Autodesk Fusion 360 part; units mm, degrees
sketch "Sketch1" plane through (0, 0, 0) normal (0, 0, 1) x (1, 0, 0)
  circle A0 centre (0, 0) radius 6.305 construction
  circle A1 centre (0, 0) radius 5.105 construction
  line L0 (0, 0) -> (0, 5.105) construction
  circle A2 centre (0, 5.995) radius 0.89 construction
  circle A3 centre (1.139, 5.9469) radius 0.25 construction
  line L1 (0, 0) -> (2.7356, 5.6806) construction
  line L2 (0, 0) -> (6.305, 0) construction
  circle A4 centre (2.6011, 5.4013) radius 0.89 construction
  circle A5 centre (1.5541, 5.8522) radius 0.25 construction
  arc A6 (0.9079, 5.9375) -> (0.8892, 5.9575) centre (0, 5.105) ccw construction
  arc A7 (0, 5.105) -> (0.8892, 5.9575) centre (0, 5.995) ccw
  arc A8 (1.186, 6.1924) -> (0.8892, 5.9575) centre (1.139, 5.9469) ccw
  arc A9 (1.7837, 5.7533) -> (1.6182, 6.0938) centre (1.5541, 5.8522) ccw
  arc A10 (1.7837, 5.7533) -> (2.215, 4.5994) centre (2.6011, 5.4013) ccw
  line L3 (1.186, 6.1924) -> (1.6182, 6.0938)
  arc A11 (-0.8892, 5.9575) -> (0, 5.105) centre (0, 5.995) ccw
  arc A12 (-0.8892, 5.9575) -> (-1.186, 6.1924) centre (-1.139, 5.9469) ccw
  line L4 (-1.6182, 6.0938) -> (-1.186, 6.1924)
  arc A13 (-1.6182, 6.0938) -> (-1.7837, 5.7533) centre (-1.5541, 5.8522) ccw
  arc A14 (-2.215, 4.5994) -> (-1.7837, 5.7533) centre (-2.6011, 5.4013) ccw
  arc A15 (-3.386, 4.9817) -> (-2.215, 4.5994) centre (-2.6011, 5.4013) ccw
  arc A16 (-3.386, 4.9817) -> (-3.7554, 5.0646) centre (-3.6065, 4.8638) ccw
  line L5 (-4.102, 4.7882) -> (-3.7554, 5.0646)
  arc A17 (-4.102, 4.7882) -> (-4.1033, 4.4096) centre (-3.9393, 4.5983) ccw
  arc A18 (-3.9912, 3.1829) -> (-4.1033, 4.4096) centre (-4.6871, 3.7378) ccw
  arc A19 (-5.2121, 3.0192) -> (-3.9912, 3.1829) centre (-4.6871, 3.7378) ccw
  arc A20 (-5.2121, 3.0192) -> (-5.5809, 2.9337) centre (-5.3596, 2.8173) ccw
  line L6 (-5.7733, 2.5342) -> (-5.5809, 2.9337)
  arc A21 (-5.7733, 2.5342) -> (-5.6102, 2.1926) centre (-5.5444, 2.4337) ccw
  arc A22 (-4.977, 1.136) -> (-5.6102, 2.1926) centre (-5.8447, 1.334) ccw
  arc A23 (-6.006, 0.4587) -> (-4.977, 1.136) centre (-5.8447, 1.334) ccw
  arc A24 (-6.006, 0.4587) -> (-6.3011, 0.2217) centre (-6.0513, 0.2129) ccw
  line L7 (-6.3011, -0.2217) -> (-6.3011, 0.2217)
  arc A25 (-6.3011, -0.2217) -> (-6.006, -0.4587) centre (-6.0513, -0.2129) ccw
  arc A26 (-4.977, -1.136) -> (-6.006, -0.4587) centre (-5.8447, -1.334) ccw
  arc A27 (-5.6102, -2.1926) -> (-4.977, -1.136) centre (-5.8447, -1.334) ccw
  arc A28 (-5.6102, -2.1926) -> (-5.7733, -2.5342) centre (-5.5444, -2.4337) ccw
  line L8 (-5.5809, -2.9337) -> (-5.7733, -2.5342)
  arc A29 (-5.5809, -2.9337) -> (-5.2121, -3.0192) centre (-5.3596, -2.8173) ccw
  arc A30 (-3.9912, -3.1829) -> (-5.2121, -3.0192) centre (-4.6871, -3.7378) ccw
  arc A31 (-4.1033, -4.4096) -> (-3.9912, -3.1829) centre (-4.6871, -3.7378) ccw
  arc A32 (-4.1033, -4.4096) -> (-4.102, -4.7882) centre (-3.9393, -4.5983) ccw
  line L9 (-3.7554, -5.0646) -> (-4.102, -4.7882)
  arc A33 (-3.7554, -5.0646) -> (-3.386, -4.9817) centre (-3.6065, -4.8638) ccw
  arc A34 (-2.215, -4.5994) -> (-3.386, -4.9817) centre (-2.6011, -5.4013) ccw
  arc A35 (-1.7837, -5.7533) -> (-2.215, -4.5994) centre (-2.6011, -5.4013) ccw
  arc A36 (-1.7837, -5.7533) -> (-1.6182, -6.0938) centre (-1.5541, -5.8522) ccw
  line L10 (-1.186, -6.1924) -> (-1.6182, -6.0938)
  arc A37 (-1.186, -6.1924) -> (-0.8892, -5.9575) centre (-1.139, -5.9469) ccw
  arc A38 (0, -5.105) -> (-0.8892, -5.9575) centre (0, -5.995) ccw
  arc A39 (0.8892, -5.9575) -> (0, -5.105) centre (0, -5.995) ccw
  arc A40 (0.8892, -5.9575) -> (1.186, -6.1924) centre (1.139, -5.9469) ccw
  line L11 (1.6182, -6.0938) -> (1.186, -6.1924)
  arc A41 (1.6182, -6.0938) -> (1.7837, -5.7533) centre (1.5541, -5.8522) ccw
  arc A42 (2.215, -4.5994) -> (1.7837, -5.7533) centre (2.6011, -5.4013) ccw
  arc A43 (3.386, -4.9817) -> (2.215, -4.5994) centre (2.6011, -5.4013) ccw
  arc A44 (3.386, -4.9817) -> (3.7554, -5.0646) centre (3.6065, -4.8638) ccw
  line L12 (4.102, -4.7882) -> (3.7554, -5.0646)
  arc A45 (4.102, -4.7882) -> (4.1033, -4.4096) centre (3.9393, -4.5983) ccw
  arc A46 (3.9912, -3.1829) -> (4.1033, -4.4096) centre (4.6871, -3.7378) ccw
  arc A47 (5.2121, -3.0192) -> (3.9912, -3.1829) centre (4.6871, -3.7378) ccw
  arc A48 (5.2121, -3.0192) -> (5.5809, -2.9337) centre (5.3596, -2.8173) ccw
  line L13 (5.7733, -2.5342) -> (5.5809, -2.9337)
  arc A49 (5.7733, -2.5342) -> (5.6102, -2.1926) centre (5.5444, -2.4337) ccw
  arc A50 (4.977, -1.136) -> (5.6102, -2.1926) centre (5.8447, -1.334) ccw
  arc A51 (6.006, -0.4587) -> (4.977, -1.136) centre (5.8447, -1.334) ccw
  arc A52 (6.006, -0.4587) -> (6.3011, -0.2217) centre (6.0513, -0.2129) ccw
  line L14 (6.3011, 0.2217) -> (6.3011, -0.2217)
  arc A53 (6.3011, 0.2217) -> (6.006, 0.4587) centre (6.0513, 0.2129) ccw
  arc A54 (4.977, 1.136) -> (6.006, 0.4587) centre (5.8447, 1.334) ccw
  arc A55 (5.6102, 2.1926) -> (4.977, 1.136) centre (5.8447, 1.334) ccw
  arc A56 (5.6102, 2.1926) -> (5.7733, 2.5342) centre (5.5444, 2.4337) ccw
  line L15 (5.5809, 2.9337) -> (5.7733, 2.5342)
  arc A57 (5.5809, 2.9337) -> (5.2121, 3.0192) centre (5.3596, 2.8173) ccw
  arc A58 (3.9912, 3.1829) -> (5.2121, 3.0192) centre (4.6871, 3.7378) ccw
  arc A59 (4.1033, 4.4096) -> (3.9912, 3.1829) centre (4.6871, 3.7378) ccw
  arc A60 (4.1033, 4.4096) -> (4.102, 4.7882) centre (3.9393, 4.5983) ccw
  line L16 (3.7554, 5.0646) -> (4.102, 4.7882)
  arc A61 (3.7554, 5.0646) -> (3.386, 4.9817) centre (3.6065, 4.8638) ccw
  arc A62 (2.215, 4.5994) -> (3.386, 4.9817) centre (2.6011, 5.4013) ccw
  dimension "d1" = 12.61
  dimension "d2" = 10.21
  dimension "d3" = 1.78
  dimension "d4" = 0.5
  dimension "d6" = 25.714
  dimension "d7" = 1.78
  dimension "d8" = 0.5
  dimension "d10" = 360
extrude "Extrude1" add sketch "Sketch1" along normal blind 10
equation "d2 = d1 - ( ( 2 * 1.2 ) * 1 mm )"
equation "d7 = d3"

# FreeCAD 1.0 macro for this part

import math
import FreeCAD as App
import Part
import Sketcher

V = App.Vector
Q = App.Units.Quantity

doc = App.newDocument("Part")
body = doc.addObject("PartDesign::Body", "Body")

# Sketch on XY plane
sketch1 = body.newObject("Sketcher::SketchObject", "Sketch")
sketch1.AttachmentSupport = (doc.getObject("XY_Plane"), [""])
sketch1.MapMode = "FlatFace"
sketch1.addGeometry([
    Part.ArcOfCircle(Part.Circle(V(0, 6, 0), V(0, 0, 1), 0.89), math.radians(-90), math.radians(-2)),  # 0
    Part.ArcOfCircle(Part.Circle(V(0, 6, 0), V(0, 0, 1), 0.89), math.radians(-178), math.radians(-90)),  # 1
    Part.ArcOfCircle(Part.Circle(V(-1.14, 5.95, 0), V(0, 0, 1), 0.25), math.radians(2), math.radians(101)),  # 2
    Part.LineSegment(V(-1.19, 6.19, 0), V(-1.62, 6.09, 0)),  # 3
    Part.ArcOfCircle(Part.Circle(V(-1.55, 5.85, 0), V(0, 0, 1), 0.25), math.radians(105), math.radians(203)),  # 4
    Part.ArcOfCircle(Part.Circle(V(-2.6, 5.4, 0), V(0, 0, 1), 0.89), math.radians(-64), math.radians(23)),  # 5
    Part.ArcOfCircle(Part.Circle(V(-2.6, 5.4, 0), V(0, 0, 1), 0.89), math.radians(-152), math.radians(-64)),  # 6
    Part.ArcOfCircle(Part.Circle(V(-3.61, 4.86, 0), V(0, 0, 1), 0.25), math.radians(28), math.radians(127)),  # 7
    Part.LineSegment(V(-3.76, 5.06, 0), V(-4.1, 4.79, 0)),  # 8
    Part.ArcOfCircle(Part.Circle(V(-3.94, 4.6, 0), V(0, 0, 1), 0.25), math.radians(131), math.radians(229)),  # 9
    Part.ArcOfCircle(Part.Circle(V(-4.69, 3.74, 0), V(0, 0, 1), 0.89), math.radians(-39), math.radians(49)),  # 10
    Part.ArcOfCircle(Part.Circle(V(-4.69, 3.74, 0), V(0, 0, 1), 0.89), math.radians(-126), math.radians(-39)),  # 11
    Part.ArcOfCircle(Part.Circle(V(-5.36, 2.82, 0), V(0, 0, 1), 0.25), math.radians(54), math.radians(152)),  # 12
    Part.LineSegment(V(-5.58, 2.93, 0), V(-5.77, 2.53, 0)),  # 13
    Part.ArcOfCircle(Part.Circle(V(-5.54, 2.43, 0), V(0, 0, 1), 0.25), math.radians(156), math.radians(255)),  # 14
    Part.ArcOfCircle(Part.Circle(V(-5.84, 1.33, 0), V(0, 0, 1), 0.89), math.radians(-13), math.radians(75)),  # 15
    Part.ArcOfCircle(Part.Circle(V(-5.84, 1.33, 0), V(0, 0, 1), 0.89), math.radians(-100), math.radians(-13)),  # 16
    Part.ArcOfCircle(Part.Circle(V(-6.05, 0.21, 0), V(0, 0, 1), 0.25), math.radians(80), math.radians(178)),  # 17
    Part.LineSegment(V(-6.3, 0.22, 0), V(-6.3, -0.22, 0)),  # 18
    Part.ArcOfCircle(Part.Circle(V(-6.05, -0.21, 0), V(0, 0, 1), 0.25), math.radians(-178), math.radians(-80)),  # 19
    Part.ArcOfCircle(Part.Circle(V(-5.84, -1.33, 0), V(0, 0, 1), 0.89), math.radians(13), math.radians(100)),  # 20
    Part.ArcOfCircle(Part.Circle(V(-5.84, -1.33, 0), V(0, 0, 1), 0.89), math.radians(-75), math.radians(13)),  # 21
    Part.ArcOfCircle(Part.Circle(V(-5.54, -2.43, 0), V(0, 0, 1), 0.25), math.radians(105), math.radians(204)),  # 22
    Part.LineSegment(V(-5.77, -2.53, 0), V(-5.58, -2.93, 0)),  # 23
    Part.ArcOfCircle(Part.Circle(V(-5.36, -2.82, 0), V(0, 0, 1), 0.25), math.radians(-152), math.radians(-54)),  # 24
    Part.ArcOfCircle(Part.Circle(V(-4.69, -3.74, 0), V(0, 0, 1), 0.89), math.radians(39), math.radians(126)),  # 25
    Part.ArcOfCircle(Part.Circle(V(-4.69, -3.74, 0), V(0, 0, 1), 0.89), math.radians(-49), math.radians(39)),  # 26
    Part.ArcOfCircle(Part.Circle(V(-3.94, -4.6, 0), V(0, 0, 1), 0.25), math.radians(131), math.radians(229)),  # 27
    Part.LineSegment(V(-4.1, -4.79, 0), V(-3.76, -5.06, 0)),  # 28
    Part.ArcOfCircle(Part.Circle(V(-3.61, -4.86, 0), V(0, 0, 1), 0.25), math.radians(-127), math.radians(-28)),  # 29
    Part.ArcOfCircle(Part.Circle(V(-2.6, -5.4, 0), V(0, 0, 1), 0.89), math.radians(64), math.radians(152)),  # 30
    Part.ArcOfCircle(Part.Circle(V(-2.6, -5.4, 0), V(0, 0, 1), 0.89), math.radians(-23), math.radians(64)),  # 31
    Part.ArcOfCircle(Part.Circle(V(-1.55, -5.85, 0), V(0, 0, 1), 0.25), math.radians(157), math.radians(255)),  # 32
    Part.LineSegment(V(-1.62, -6.09, 0), V(-1.19, -6.19, 0)),  # 33
    Part.ArcOfCircle(Part.Circle(V(-1.14, -5.95, 0), V(0, 0, 1), 0.25), math.radians(-101), math.radians(-2)),  # 34
    Part.ArcOfCircle(Part.Circle(V(0, -6, 0), V(0, 0, 1), 0.89), math.radians(90), math.radians(178)),  # 35
    Part.ArcOfCircle(Part.Circle(V(0, -6, 0), V(0, 0, 1), 0.89), math.radians(2), math.radians(90)),  # 36
    Part.ArcOfCircle(Part.Circle(V(1.14, -5.95, 0), V(0, 0, 1), 0.25), math.radians(-178), math.radians(-79)),  # 37
    Part.LineSegment(V(1.19, -6.19, 0), V(1.62, -6.09, 0)),  # 38
    Part.ArcOfCircle(Part.Circle(V(1.55, -5.85, 0), V(0, 0, 1), 0.25), math.radians(-75), math.radians(23)),  # 39
    Part.ArcOfCircle(Part.Circle(V(2.6, -5.4, 0), V(0, 0, 1), 0.89), math.radians(116), math.radians(203)),  # 40
    Part.ArcOfCircle(Part.Circle(V(2.6, -5.4, 0), V(0, 0, 1), 0.89), math.radians(28), math.radians(116)),  # 41
    Part.ArcOfCircle(Part.Circle(V(3.61, -4.86, 0), V(0, 0, 1), 0.25), math.radians(-152), math.radians(-53)),  # 42
    Part.LineSegment(V(3.76, -5.06, 0), V(4.1, -4.79, 0)),  # 43
    Part.ArcOfCircle(Part.Circle(V(3.94, -4.6, 0), V(0, 0, 1), 0.25), math.radians(-49), math.radians(49)),  # 44
    Part.ArcOfCircle(Part.Circle(V(4.69, -3.74, 0), V(0, 0, 1), 0.89), math.radians(141), math.radians(229)),  # 45
    Part.ArcOfCircle(Part.Circle(V(4.69, -3.74, 0), V(0, 0, 1), 0.89), math.radians(54), math.radians(141)),  # 46
    Part.ArcOfCircle(Part.Circle(V(5.36, -2.82, 0), V(0, 0, 1), 0.25), math.radians(-126), math.radians(-28)),  # 47
    Part.LineSegment(V(5.58, -2.93, 0), V(5.77, -2.53, 0)),  # 48
    Part.ArcOfCircle(Part.Circle(V(5.54, -2.43, 0), V(0, 0, 1), 0.25), math.radians(-24), math.radians(75)),  # 49
    Part.ArcOfCircle(Part.Circle(V(5.84, -1.33, 0), V(0, 0, 1), 0.89), math.radians(167), math.radians(255)),  # 50
    Part.ArcOfCircle(Part.Circle(V(5.84, -1.33, 0), V(0, 0, 1), 0.89), math.radians(80), math.radians(167)),  # 51
    Part.ArcOfCircle(Part.Circle(V(6.05, -0.21, 0), V(0, 0, 1), 0.25), math.radians(-100), math.radians(-2)),  # 52
    Part.LineSegment(V(6.3, -0.22, 0), V(6.3, 0.22, 0)),  # 53
    Part.ArcOfCircle(Part.Circle(V(6.05, 0.21, 0), V(0, 0, 1), 0.25), math.radians(2), math.radians(100)),  # 54
    Part.ArcOfCircle(Part.Circle(V(5.84, 1.33, 0), V(0, 0, 1), 0.89), math.radians(-167), math.radians(-80)),  # 55
    Part.ArcOfCircle(Part.Circle(V(5.84, 1.33, 0), V(0, 0, 1), 0.89), math.radians(105), math.radians(193)),  # 56
    Part.ArcOfCircle(Part.Circle(V(5.54, 2.43, 0), V(0, 0, 1), 0.25), math.radians(-75), math.radians(24)),  # 57
    Part.LineSegment(V(5.77, 2.53, 0), V(5.58, 2.93, 0)),  # 58
    Part.ArcOfCircle(Part.Circle(V(5.36, 2.82, 0), V(0, 0, 1), 0.25), math.radians(28), math.radians(126)),  # 59
    Part.ArcOfCircle(Part.Circle(V(4.69, 3.74, 0), V(0, 0, 1), 0.89), math.radians(-141), math.radians(-54)),  # 60
    Part.ArcOfCircle(Part.Circle(V(4.69, 3.74, 0), V(0, 0, 1), 0.89), math.radians(131), math.radians(219)),  # 61
    Part.ArcOfCircle(Part.Circle(V(3.94, 4.6, 0), V(0, 0, 1), 0.25), math.radians(-49), math.radians(49)),  # 62
    Part.LineSegment(V(4.1, 4.79, 0), V(3.76, 5.06, 0)),  # 63
    Part.ArcOfCircle(Part.Circle(V(3.61, 4.86, 0), V(0, 0, 1), 0.25), math.radians(53), math.radians(152)),  # 64
    Part.ArcOfCircle(Part.Circle(V(2.6, 5.4, 0), V(0, 0, 1), 0.89), math.radians(-116), math.radians(-28)),  # 65
    Part.ArcOfCircle(Part.Circle(V(2.6, 5.4, 0), V(0, 0, 1), 0.89), math.radians(157), math.radians(244)),  # 66
    Part.ArcOfCircle(Part.Circle(V(1.55, 5.85, 0), V(0, 0, 1), 0.25), math.radians(-23), math.radians(75)),  # 67
    Part.LineSegment(V(1.62, 6.09, 0), V(1.19, 6.19, 0)),  # 68
    Part.ArcOfCircle(Part.Circle(V(1.14, 5.95, 0), V(0, 0, 1), 0.25), math.radians(79), math.radians(178)),  # 69
], False)
sketch1.addConstraint([
    Sketcher.Constraint("Tangent", 0, 1, 1, 2),
    Sketcher.Constraint("Tangent", 1, 1, 2, 1),
    Sketcher.Constraint("Coincident", 2, 2, 3, 1),
    Sketcher.Constraint("Coincident", 3, 2, 4, 1),
    Sketcher.Constraint("Tangent", 4, 2, 5, 2),
    Sketcher.Constraint("Tangent", 5, 1, 6, 2),
    Sketcher.Constraint("Tangent", 6, 1, 7, 1),
    Sketcher.Constraint("Coincident", 7, 2, 8, 1),
    Sketcher.Constraint("Coincident", 8, 2, 9, 1),
    Sketcher.Constraint("Tangent", 9, 2, 10, 2),
    Sketcher.Constraint("Tangent", 10, 1, 11, 2),
    Sketcher.Constraint("Tangent", 11, 1, 12, 1),
    Sketcher.Constraint("Coincident", 12, 2, 13, 1),
    Sketcher.Constraint("Coincident", 13, 2, 14, 1),
    Sketcher.Constraint("Tangent", 14, 2, 15, 2),
    Sketcher.Constraint("Tangent", 15, 1, 16, 2),
    Sketcher.Constraint("Tangent", 16, 1, 17, 1),
    Sketcher.Constraint("Coincident", 17, 2, 18, 1),
    Sketcher.Constraint("Coincident", 18, 2, 19, 1),
    Sketcher.Constraint("Tangent", 19, 2, 20, 2),
    Sketcher.Constraint("Tangent", 20, 1, 21, 2),
    Sketcher.Constraint("Tangent", 21, 1, 22, 1),
    Sketcher.Constraint("Coincident", 22, 2, 23, 1),
    Sketcher.Constraint("Coincident", 23, 2, 24, 1),
    Sketcher.Constraint("Tangent", 24, 2, 25, 2),
    Sketcher.Constraint("Tangent", 25, 1, 26, 2),
    Sketcher.Constraint("Tangent", 26, 1, 27, 1),
    Sketcher.Constraint("Coincident", 27, 2, 28, 1),
    Sketcher.Constraint("Coincident", 28, 2, 29, 1),
    Sketcher.Constraint("Tangent", 29, 2, 30, 2),
    Sketcher.Constraint("Tangent", 30, 1, 31, 2),
    Sketcher.Constraint("Tangent", 31, 1, 32, 1),
    Sketcher.Constraint("Coincident", 32, 2, 33, 1),
    Sketcher.Constraint("Coincident", 33, 2, 34, 1),
    Sketcher.Constraint("Tangent", 34, 2, 35, 2),
    Sketcher.Constraint("Tangent", 35, 1, 36, 2),
    Sketcher.Constraint("Tangent", 36, 1, 37, 1),
    Sketcher.Constraint("Coincident", 37, 2, 38, 1),
    Sketcher.Constraint("Coincident", 38, 2, 39, 1),
    Sketcher.Constraint("Tangent", 39, 2, 40, 2),
    Sketcher.Constraint("Tangent", 40, 1, 41, 2),
    Sketcher.Constraint("Tangent", 41, 1, 42, 1),
    Sketcher.Constraint("Coincident", 42, 2, 43, 1),
    Sketcher.Constraint("Coincident", 43, 2, 44, 1),
    Sketcher.Constraint("Tangent", 44, 2, 45, 2),
    Sketcher.Constraint("Tangent", 45, 1, 46, 2),
    Sketcher.Constraint("Tangent", 46, 1, 47, 1),
    Sketcher.Constraint("Coincident", 47, 2, 48, 1),
    Sketcher.Constraint("Coincident", 48, 2, 49, 1),
    Sketcher.Constraint("Tangent", 49, 2, 50, 2),
    Sketcher.Constraint("Tangent", 50, 1, 51, 2),
    Sketcher.Constraint("Tangent", 51, 1, 52, 1),
    Sketcher.Constraint("Coincident", 52, 2, 53, 1),
    Sketcher.Constraint("Coincident", 53, 2, 54, 1),
    Sketcher.Constraint("Tangent", 54, 2, 55, 2),
    Sketcher.Constraint("Tangent", 55, 1, 56, 2),
    Sketcher.Constraint("Tangent", 56, 1, 57, 1),
    Sketcher.Constraint("Coincident", 57, 2, 58, 1),
    Sketcher.Constraint("Coincident", 58, 2, 59, 1),
    Sketcher.Constraint("Tangent", 59, 2, 60, 2),
    Sketcher.Constraint("Tangent", 60, 1, 61, 2),
    Sketcher.Constraint("Tangent", 61, 1, 62, 1),
    Sketcher.Constraint("Coincident", 62, 2, 63, 1),
    Sketcher.Constraint("Coincident", 63, 2, 64, 1),
    Sketcher.Constraint("Tangent", 64, 2, 65, 2),
    Sketcher.Constraint("Tangent", 65, 1, 66, 2),
    Sketcher.Constraint("Tangent", 66, 1, 67, 1),
    Sketcher.Constraint("Coincident", 67, 2, 68, 1),
    Sketcher.Constraint("Coincident", 68, 2, 69, 1),
    Sketcher.Constraint("Tangent", 69, 2, 0, 2),
    Sketcher.Constraint("Vertical", 18),
    Sketcher.Constraint("Vertical", 53),
    Sketcher.Constraint("Equal", 0, 1),
    Sketcher.Constraint("Equal", 2, 4),
    Sketcher.Constraint("Equal", 1, 5),
    Sketcher.Constraint("Equal", 5, 6),
    Sketcher.Constraint("Equal", 4, 7),
    Sketcher.Constraint("Equal", 7, 9),
    Sketcher.Constraint("Equal", 6, 10),
    Sketcher.Constraint("Equal", 10, 11),
    Sketcher.Constraint("Equal", 9, 12),
    Sketcher.Constraint("Equal", 12, 14),
    Sketcher.Constraint("Equal", 11, 15),
    Sketcher.Constraint("Equal", 15, 16),
    Sketcher.Constraint("Equal", 14, 17),
    Sketcher.Constraint("Equal", 17, 19),
    Sketcher.Constraint("Equal", 16, 20),
    Sketcher.Constraint("Equal", 20, 21),
    Sketcher.Constraint("Equal", 19, 22),
    Sketcher.Constraint("Equal", 22, 24),
    Sketcher.Constraint("Equal", 21, 25),
    Sketcher.Constraint("Equal", 25, 26),
    Sketcher.Constraint("Equal", 24, 27),
    Sketcher.Constraint("Equal", 27, 29),
    Sketcher.Constraint("Equal", 26, 30),
    Sketcher.Constraint("Equal", 30, 31),
    Sketcher.Constraint("Equal", 29, 32),
    Sketcher.Constraint("Equal", 32, 34),
    Sketcher.Constraint("Equal", 31, 35),
    Sketcher.Constraint("Equal", 35, 36),
    Sketcher.Constraint("Equal", 34, 37),
    Sketcher.Constraint("Equal", 37, 39),
    Sketcher.Constraint("Equal", 36, 40),
    Sketcher.Constraint("Equal", 40, 41),
    Sketcher.Constraint("Equal", 39, 42),
    Sketcher.Constraint("Equal", 42, 44),
    Sketcher.Constraint("Equal", 41, 45),
    Sketcher.Constraint("Equal", 45, 46),
    Sketcher.Constraint("Equal", 44, 47),
    Sketcher.Constraint("Equal", 47, 49),
    Sketcher.Constraint("Equal", 46, 50),
    Sketcher.Constraint("Equal", 50, 51),
    Sketcher.Constraint("Equal", 49, 52),
    Sketcher.Constraint("Equal", 52, 54),
    Sketcher.Constraint("Equal", 51, 55),
    Sketcher.Constraint("Equal", 55, 56),
    Sketcher.Constraint("Equal", 54, 57),
    Sketcher.Constraint("Equal", 57, 59),
    Sketcher.Constraint("Equal", 56, 60),
    Sketcher.Constraint("Equal", 60, 61),
    Sketcher.Constraint("Equal", 59, 62),
    Sketcher.Constraint("Equal", 62, 64),
    Sketcher.Constraint("Equal", 61, 65),
    Sketcher.Constraint("Equal", 65, 66),
    Sketcher.Constraint("Equal", 64, 67),
    Sketcher.Constraint("Equal", 67, 69),
    Sketcher.Constraint("Symmetric", 0, 3, 35, 3, -1, 1),
    Sketcher.Constraint("Symmetric", 4, 3, 39, 3, -1, 1),
    Sketcher.Constraint("Symmetric", 7, 3, 42, 3, -1, 1),
    Sketcher.Constraint("Symmetric", 9, 3, 44, 3, -1, 1),
    Sketcher.Constraint("Symmetric", 12, 3, 47, 3, -1, 1),
    Sketcher.Constraint("Symmetric", 14, 3, 49, 3, -1, 1),
    Sketcher.Constraint("Symmetric", 17, 3, 52, 3, -1, 1),
    Sketcher.Constraint("Symmetric", 19, 3, 54, 3, -1, 1),
    Sketcher.Constraint("Symmetric", 22, 3, 57, 3, -1, 1),
    Sketcher.Constraint("Symmetric", 24, 3, 59, 3, -1, 1),
    Sketcher.Constraint("Symmetric", 27, 3, 62, 3, -1, 1),
    Sketcher.Constraint("Symmetric", 29, 3, 64, 3, -1, 1),
    Sketcher.Constraint("Symmetric", 32, 3, 67, 3, -1, 1),
    Sketcher.Constraint("Symmetric", 2, 2, 37, 2, -1, 1),
    Sketcher.Constraint("Symmetric", 33, 2, 68, 2, -1, 1),
    Sketcher.Constraint("Symmetric", 34, 3, 37, 3, -2),
    Sketcher.Constraint("Symmetric", 32, 3, 39, 3, -2),
    Sketcher.Constraint("Symmetric", 29, 3, 42, 3, -2),
    Sketcher.Constraint("Symmetric", 27, 3, 44, 3, -2),
    Sketcher.Constraint("Symmetric", 24, 3, 47, 3, -2),
    Sketcher.Constraint("Symmetric", 22, 3, 49, 3, -2),
    Sketcher.Constraint("Symmetric", 19, 3, 52, 3, -2),
    Sketcher.Constraint("PointOnObject", 0, 1, -2),
    Sketcher.Constraint("PointOnObject", 35, 1, -2),
    Sketcher.Constraint("Parallel", 3, 38),
    Sketcher.Constraint("Parallel", 8, 43),
    Sketcher.Constraint("Parallel", 13, 48),
    Sketcher.Constraint("Parallel", 23, 58),
    Sketcher.Constraint("Parallel", 28, 63),
    Sketcher.Constraint("Parallel", 33, 68),
    Sketcher.Constraint("Horizontal", 33, 2, 37, 2),
    Sketcher.Constraint("Horizontal", 32, 2, 38, 2),
    Sketcher.Constraint("Horizontal", 30, 1, 40, 1),
    Sketcher.Constraint("Horizontal", 28, 2, 42, 2),
    Sketcher.Constraint("Horizontal", 27, 2, 43, 2),
    Sketcher.Constraint("Horizontal", 25, 1, 45, 1),
    Sketcher.Constraint("Horizontal", 23, 2, 47, 2),
    Sketcher.Constraint("Horizontal", 22, 2, 48, 2),
    Sketcher.Constraint("Horizontal", 20, 1, 50, 1),
    Sketcher.Constraint("Horizontal", 18, 2, 52, 2),
    Sketcher.Constraint("Horizontal", 15, 1, 55, 1),
    Sketcher.Constraint("Horizontal", 13, 2, 57, 2),
    Sketcher.Constraint("Horizontal", 10, 1, 60, 1),
    Sketcher.Constraint("Horizontal", 8, 2, 62, 2),
    Sketcher.Constraint("Horizontal", 5, 1, 65, 1),
    Sketcher.Constraint("Vertical", 15, 1, 20, 1),
    Sketcher.Constraint("Vertical", 13, 2, 22, 2),
    Sketcher.Constraint("Vertical", 10, 1, 25, 1),
    Sketcher.Constraint("Vertical", 8, 2, 27, 2),
    Sketcher.Constraint("Vertical", 5, 1, 30, 1),
    Sketcher.Constraint("Equal", 3, 8),
    Sketcher.Constraint("Equal", 8, 13),
    Sketcher.Constraint("Radius", 0, Q("0.89 mm")),
    Sketcher.Constraint("Radius", 2, Q("0.25 mm")),
    Sketcher.Constraint("Angle", 8, Q("-141.429 deg")),
    Sketcher.Constraint("DistanceY", 18, 2, 18, 1, Q("0.4434 mm")),
    Sketcher.Constraint("DistanceY", -1, 1, 0, 3, Q("5.995 mm")),
    Sketcher.Constraint("DistanceX", 2, 3, -1, 1, Q("1.139 mm")),
    Sketcher.Constraint("DistanceX", 4, 3, -1, 1, Q("1.554 mm")),
    Sketcher.Constraint("DistanceX", 5, 3, -1, 1, Q("2.601 mm")),
    Sketcher.Constraint("DistanceX", 10, 3, -1, 1, Q("4.687 mm")),
    Sketcher.Constraint("DistanceY", -1, 1, 15, 3, Q("1.334 mm")),
    Sketcher.Constraint("DistanceY", -1, 1, 17, 3, Q("0.213 mm")),
    Sketcher.Constraint("DistanceX", 2, 2, -1, 1, Q("1.186 mm")),
    Sketcher.Constraint("DistanceX", 5, 1, -1, 1, Q("2.215 mm")),
    Sketcher.Constraint("DistanceX", 6, 1, -1, 1, Q("3.386 mm")),
    Sketcher.Constraint("DistanceX", 8, 2, -1, 1, Q("4.102 mm")),
    Sketcher.Constraint("DistanceY", -1, 1, 10, 1, Q("3.183 mm")),
    Sketcher.Constraint("DistanceY", -1, 1, 11, 1, Q("3.019 mm")),
    Sketcher.Constraint("DistanceX", 12, 2, -1, 1, Q("5.581 mm")),
    Sketcher.Constraint("DistanceX", 15, 1, -1, 1, Q("4.977 mm")),
    Sketcher.Constraint("DistanceY", -1, 1, 15, 1, Q("1.136 mm")),
    Sketcher.Constraint("DistanceX", 24, 2, -1, 1, Q("5.212 mm")),
    Sketcher.Constraint("Distance", 3, Q("0.4433 mm")),
    Sketcher.Constraint("DistanceY", -1, 1, 4, 3, Q("5.8522 mm")),
    Sketcher.Constraint("DistanceX", 14, 3, -1, 1, Q("5.5444 mm")),
])
pad1 = body.newObject("PartDesign::Pad", "Pad")
pad1.Profile = sketch1
pad1.Length = 10

doc.recompute()
